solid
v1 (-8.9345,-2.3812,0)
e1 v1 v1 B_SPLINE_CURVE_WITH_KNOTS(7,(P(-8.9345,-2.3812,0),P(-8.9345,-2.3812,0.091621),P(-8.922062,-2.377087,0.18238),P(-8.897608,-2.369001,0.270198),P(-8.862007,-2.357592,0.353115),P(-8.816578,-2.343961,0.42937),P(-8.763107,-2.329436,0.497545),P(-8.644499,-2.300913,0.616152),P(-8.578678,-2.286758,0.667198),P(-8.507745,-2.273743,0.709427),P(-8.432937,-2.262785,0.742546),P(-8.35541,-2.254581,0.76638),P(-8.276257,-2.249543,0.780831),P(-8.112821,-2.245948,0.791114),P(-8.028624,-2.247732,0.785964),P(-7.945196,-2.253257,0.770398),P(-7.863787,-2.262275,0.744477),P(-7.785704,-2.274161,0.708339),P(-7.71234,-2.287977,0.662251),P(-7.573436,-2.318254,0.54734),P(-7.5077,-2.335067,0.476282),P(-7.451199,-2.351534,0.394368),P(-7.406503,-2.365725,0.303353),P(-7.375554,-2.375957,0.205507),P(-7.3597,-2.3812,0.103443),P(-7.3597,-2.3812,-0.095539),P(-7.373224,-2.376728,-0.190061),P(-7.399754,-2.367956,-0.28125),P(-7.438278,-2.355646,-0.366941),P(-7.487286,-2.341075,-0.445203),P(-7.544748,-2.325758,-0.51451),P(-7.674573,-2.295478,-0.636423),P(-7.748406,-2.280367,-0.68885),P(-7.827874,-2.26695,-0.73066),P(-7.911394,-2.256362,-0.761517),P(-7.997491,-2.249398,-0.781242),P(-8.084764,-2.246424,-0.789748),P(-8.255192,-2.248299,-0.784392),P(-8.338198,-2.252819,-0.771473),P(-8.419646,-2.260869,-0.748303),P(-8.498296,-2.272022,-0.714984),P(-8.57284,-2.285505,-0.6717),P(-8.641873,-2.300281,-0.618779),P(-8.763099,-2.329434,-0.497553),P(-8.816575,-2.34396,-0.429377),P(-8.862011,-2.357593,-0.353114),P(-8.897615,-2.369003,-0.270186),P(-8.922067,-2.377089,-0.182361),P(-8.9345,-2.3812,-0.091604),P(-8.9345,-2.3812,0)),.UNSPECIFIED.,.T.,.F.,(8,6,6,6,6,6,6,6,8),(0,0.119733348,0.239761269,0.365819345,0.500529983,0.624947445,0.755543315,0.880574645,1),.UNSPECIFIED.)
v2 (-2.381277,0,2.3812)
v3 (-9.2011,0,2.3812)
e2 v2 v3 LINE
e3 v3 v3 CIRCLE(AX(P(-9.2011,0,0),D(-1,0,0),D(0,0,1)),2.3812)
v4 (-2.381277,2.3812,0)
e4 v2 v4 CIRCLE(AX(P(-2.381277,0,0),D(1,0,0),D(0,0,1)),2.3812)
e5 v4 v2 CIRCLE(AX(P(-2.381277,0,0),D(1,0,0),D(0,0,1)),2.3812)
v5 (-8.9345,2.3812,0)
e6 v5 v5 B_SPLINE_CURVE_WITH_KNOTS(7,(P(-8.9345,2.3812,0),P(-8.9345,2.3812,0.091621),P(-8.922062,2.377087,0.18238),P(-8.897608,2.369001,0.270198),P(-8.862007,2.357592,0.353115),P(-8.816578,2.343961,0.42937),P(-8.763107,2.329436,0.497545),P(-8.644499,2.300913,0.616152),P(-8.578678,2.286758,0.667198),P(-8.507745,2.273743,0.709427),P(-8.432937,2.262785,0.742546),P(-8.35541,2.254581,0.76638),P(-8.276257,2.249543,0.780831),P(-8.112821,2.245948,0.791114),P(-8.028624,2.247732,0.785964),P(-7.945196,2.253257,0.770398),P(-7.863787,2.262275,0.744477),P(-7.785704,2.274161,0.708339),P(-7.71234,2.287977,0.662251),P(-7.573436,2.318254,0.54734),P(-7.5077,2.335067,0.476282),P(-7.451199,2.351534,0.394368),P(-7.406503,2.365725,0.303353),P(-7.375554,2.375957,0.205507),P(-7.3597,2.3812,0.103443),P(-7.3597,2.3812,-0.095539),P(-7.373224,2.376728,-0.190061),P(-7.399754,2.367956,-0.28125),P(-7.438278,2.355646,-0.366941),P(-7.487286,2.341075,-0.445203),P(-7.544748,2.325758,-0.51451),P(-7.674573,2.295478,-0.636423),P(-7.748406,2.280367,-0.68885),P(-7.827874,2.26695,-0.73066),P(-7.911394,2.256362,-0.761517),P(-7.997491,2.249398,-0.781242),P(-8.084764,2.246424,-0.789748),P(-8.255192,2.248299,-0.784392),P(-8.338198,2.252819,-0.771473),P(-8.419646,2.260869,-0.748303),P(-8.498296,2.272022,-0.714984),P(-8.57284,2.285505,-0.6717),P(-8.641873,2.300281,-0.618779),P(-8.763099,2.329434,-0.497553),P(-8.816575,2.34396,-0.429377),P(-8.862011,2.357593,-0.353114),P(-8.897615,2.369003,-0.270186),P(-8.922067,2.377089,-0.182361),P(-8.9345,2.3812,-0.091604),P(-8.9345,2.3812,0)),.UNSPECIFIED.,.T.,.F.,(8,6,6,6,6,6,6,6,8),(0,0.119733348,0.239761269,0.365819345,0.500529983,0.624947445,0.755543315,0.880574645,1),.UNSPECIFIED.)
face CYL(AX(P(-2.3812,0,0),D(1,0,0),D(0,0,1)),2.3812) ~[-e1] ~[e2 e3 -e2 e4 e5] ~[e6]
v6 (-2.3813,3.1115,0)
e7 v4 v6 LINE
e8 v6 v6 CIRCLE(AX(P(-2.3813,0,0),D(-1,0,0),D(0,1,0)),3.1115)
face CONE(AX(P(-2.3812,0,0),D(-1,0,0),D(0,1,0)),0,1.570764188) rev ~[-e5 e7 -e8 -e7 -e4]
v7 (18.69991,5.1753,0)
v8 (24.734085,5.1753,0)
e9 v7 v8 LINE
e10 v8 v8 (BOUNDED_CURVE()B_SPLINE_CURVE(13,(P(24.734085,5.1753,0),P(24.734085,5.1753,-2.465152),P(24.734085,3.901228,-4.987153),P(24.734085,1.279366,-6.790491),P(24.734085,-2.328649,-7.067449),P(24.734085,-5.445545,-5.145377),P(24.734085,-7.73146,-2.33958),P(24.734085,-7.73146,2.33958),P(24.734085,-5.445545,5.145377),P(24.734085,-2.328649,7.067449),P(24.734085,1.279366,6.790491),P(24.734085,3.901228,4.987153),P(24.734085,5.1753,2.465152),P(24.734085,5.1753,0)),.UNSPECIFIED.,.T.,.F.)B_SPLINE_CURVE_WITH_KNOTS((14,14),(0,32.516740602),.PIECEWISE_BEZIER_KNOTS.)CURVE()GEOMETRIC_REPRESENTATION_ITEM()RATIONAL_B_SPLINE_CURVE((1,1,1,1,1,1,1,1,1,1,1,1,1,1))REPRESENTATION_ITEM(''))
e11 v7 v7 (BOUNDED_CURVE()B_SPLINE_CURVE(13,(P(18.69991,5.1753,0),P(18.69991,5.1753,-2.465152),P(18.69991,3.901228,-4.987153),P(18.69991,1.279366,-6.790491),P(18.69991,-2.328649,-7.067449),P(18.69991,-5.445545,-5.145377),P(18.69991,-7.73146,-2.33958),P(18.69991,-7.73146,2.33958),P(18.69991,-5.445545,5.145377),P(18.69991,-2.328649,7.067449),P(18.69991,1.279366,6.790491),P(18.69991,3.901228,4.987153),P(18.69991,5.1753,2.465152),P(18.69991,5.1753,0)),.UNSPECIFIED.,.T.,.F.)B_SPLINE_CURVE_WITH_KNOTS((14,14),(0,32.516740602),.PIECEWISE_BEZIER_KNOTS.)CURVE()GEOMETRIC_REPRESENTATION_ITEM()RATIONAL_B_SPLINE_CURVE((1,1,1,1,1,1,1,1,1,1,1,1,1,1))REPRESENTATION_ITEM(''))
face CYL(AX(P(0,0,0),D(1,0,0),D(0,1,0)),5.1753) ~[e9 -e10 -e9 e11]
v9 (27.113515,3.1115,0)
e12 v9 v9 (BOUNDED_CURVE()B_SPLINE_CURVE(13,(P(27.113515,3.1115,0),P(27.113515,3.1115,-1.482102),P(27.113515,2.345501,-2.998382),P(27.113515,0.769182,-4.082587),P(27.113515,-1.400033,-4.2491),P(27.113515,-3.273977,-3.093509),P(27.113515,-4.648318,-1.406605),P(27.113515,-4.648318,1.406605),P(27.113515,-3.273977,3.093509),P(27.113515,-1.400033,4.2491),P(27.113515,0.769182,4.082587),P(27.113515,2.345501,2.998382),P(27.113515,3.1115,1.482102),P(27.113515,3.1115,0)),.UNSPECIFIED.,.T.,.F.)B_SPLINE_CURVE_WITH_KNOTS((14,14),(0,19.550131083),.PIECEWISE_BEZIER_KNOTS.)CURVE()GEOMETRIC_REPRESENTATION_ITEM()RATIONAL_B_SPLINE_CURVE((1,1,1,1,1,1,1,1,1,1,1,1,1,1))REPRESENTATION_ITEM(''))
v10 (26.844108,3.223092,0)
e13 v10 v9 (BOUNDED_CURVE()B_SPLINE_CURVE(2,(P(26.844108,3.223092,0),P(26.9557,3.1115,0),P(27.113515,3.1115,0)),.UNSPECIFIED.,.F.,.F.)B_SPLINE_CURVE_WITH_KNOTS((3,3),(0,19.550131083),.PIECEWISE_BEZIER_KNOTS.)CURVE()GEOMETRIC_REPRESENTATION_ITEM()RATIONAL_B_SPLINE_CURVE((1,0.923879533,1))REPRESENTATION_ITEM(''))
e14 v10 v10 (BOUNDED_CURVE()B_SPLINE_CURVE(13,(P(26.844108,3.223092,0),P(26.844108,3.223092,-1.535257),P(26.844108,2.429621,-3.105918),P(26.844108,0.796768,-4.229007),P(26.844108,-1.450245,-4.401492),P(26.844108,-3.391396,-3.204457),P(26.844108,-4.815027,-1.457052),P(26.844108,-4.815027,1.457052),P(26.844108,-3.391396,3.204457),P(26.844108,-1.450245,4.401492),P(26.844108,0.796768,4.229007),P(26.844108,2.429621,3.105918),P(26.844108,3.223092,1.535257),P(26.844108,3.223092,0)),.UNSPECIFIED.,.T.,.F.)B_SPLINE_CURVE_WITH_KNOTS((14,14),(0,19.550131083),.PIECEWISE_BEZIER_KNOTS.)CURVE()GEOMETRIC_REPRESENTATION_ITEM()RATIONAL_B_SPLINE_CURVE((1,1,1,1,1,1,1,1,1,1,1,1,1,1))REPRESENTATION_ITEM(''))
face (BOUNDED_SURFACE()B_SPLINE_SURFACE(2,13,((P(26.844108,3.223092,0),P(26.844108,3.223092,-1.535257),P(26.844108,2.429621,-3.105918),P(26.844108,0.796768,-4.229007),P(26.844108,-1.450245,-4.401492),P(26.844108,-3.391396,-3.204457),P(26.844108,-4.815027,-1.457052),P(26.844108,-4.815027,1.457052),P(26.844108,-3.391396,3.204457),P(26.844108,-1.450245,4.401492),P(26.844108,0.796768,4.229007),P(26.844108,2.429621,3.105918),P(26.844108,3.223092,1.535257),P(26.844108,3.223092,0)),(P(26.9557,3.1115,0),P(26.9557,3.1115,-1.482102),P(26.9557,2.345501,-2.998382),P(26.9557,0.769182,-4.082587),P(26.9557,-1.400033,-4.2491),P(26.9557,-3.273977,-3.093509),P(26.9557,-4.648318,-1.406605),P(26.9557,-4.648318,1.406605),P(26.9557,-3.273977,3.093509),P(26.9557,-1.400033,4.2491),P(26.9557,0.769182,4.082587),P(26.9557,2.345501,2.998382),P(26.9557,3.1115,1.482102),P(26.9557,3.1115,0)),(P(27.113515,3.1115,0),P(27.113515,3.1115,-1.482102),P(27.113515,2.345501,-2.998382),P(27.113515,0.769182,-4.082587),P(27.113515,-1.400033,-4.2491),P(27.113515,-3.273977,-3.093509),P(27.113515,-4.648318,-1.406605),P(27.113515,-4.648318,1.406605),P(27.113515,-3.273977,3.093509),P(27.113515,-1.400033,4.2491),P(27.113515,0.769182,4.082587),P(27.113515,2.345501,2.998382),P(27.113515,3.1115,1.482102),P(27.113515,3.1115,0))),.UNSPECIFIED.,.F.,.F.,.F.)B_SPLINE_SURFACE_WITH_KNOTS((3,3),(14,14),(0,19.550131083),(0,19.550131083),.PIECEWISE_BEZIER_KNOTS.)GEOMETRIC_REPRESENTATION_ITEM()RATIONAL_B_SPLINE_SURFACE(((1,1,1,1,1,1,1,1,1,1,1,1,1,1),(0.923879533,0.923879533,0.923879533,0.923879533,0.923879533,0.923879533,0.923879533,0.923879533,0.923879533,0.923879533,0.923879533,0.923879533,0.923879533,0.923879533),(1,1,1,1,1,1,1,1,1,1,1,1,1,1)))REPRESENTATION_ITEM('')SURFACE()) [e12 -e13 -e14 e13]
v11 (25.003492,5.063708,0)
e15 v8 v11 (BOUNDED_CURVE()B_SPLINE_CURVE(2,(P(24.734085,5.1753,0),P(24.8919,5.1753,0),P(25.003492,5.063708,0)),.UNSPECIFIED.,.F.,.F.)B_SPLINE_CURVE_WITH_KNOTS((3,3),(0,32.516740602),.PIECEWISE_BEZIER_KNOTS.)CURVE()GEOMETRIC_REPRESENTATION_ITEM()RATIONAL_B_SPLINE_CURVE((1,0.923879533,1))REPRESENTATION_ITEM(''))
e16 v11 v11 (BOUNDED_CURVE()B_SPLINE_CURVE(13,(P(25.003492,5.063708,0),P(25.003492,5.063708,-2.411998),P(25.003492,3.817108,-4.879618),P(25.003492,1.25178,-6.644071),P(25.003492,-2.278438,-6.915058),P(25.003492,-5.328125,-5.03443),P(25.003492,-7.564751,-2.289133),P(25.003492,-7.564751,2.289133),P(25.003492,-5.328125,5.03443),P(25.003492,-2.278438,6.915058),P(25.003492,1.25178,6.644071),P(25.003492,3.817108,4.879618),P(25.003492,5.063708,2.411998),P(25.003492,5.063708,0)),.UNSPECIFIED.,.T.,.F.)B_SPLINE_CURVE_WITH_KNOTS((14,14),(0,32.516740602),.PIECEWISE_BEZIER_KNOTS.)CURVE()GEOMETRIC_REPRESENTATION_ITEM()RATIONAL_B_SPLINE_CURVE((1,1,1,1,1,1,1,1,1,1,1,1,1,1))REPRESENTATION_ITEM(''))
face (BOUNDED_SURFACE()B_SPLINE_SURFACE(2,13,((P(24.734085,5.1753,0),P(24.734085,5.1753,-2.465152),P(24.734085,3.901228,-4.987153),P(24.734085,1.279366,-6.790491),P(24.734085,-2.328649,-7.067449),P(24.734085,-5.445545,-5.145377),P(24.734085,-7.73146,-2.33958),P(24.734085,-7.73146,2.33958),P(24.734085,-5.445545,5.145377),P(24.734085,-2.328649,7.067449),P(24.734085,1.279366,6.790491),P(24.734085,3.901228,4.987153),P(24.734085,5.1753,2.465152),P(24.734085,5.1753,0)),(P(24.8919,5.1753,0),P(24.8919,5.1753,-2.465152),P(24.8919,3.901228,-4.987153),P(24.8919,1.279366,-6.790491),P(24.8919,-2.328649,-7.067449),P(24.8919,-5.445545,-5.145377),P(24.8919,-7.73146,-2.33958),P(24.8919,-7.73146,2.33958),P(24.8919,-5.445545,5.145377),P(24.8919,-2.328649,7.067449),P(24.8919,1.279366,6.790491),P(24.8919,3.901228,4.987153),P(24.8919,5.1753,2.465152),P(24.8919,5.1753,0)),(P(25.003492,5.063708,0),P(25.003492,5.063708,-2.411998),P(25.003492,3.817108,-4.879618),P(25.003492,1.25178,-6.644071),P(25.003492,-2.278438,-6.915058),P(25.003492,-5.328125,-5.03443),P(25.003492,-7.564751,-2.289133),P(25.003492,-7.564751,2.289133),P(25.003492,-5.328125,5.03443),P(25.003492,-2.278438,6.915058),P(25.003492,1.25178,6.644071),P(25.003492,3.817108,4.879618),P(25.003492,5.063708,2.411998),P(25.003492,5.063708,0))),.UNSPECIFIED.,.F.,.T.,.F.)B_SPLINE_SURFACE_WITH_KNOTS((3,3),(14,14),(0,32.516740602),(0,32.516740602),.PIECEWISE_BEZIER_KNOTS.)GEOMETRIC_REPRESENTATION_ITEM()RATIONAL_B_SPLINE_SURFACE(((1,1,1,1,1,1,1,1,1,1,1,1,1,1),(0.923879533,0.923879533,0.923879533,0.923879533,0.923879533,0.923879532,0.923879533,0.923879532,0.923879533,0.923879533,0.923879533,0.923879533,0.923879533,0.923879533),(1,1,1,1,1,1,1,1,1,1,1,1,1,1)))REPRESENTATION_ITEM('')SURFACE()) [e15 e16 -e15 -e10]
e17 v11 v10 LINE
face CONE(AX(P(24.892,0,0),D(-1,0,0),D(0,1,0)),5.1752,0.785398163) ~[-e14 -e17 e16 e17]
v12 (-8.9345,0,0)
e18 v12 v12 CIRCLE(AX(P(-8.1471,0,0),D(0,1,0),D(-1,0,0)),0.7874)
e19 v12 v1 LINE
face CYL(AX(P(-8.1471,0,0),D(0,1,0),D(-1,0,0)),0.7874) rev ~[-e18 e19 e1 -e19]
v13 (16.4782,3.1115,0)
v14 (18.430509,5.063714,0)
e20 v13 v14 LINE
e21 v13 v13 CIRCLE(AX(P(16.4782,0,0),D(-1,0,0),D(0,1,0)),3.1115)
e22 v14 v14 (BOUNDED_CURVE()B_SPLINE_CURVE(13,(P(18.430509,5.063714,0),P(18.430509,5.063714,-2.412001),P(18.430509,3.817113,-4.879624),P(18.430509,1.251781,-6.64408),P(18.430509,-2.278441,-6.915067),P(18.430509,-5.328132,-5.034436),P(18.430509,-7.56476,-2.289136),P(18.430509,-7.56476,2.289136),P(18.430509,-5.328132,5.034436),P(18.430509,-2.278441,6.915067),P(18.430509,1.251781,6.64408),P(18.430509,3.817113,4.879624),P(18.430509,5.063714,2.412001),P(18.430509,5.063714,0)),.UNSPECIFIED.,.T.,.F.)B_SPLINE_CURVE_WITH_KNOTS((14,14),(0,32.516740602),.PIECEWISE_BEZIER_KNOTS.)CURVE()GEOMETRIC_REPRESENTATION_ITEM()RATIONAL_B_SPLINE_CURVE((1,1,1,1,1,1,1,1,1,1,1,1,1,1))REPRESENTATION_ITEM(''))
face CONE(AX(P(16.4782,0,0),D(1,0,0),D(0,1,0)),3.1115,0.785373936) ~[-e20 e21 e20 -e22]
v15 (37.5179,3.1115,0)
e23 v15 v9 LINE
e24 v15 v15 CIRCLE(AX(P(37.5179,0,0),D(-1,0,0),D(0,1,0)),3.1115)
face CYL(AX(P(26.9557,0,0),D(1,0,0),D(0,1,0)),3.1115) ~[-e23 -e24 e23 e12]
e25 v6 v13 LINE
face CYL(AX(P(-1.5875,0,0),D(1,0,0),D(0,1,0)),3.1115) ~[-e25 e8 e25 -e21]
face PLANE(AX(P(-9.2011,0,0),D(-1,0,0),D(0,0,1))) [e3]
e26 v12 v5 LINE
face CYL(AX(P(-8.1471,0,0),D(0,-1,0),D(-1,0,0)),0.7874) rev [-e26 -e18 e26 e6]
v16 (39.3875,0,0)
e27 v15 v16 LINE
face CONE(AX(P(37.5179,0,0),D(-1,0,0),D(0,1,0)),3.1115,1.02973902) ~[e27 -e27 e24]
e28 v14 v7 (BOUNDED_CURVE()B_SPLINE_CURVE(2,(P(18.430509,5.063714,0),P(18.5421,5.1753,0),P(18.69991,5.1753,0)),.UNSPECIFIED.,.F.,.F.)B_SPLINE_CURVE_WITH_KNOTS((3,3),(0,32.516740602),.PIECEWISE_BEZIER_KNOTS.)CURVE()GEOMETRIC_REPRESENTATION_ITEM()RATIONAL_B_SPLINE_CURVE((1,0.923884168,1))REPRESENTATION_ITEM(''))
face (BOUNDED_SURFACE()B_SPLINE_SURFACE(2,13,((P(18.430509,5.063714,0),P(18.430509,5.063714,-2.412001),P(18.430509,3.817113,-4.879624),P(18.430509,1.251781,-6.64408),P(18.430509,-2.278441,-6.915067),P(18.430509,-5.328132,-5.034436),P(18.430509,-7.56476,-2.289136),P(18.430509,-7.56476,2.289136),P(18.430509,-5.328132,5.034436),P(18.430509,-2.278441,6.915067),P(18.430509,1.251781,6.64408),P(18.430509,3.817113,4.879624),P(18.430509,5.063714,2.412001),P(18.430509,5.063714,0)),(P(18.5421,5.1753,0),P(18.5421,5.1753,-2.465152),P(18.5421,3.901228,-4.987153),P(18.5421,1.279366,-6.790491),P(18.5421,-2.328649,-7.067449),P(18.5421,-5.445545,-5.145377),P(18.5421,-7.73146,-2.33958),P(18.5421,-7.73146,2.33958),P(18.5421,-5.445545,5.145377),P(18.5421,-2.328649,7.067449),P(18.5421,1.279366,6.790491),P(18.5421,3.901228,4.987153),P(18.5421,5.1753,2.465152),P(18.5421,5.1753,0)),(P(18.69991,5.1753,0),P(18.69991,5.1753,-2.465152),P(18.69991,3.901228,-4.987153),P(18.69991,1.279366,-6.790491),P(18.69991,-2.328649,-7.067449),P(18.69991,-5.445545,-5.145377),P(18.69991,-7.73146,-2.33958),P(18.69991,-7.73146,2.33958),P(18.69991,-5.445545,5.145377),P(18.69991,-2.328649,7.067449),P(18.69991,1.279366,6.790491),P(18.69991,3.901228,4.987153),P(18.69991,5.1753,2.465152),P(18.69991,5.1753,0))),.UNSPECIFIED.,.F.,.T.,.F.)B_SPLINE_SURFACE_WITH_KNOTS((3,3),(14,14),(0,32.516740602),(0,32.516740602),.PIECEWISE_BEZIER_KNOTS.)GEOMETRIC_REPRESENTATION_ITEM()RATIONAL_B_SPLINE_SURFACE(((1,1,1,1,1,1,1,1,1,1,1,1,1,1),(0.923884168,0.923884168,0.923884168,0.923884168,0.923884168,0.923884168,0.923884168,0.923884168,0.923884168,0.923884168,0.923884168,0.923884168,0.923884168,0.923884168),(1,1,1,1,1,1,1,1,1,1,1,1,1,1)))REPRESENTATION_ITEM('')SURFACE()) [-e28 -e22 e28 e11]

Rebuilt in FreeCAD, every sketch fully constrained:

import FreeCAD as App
import Part
import Sketcher
Q = App.Units.Quantity


def edges_at(feature, points):
    """Names of the edges that pass closest to the given points."""
    edges = feature.Shape.Edges
    near = lambda p: min(range(len(edges)), key=lambda i: edges[i].distToShape(Part.Vertex(*p))[0])
    return sorted({f"Edge{near(p) + 1}" for p in points})

doc = App.newDocument("Part")
params = doc.addObject("Spreadsheet::Sheet", "Params")
for row, (alias, value) in enumerate([
    ("sketch1_width", "0.25 in"),
    ("revolution_angle", "360 deg"),
    ("fillet_radius", "0.015 in"),
    ("sketch2_diameter", "0.1875 in"),
    ("pad1_length", "0.2685 in"),
    ("sketch3_diameter", "0.062 in"),
], start=1):
    params.set(f"A{row}", alias)
    params.set(f"B{row}", "=" + value)
    params.setAlias(f"B{row}", alias)

body = doc.addObject("PartDesign::Body", "Body")

sketch1 = body.newObject("Sketcher::SketchObject", "Sketch")
sketch1.AttachmentSupport = (doc.getObject("XY_Plane"), [""])
sketch1.MapMode = "FlatFace"
sketch1.addGeometry([
    Part.LineSegment(App.Vector(39.4, 0, 0), App.Vector(37.5, 3.1, 0)),
    Part.LineSegment(App.Vector(37.5, 3.1, 0), App.Vector(27, 3.1, 0)),
    Part.LineSegment(App.Vector(27, 3.1, 0), App.Vector(24.9, 5.2, 0)),
    Part.LineSegment(App.Vector(24.9, 5.2, 0), App.Vector(18.5, 5.2, 0)),
    Part.LineSegment(App.Vector(18.5, 5.2, 0), App.Vector(16.5, 3.1, 0)),
    Part.LineSegment(App.Vector(16.5, 3.1, 0), App.Vector(-2.4, 3.1, 0)),
    Part.LineSegment(App.Vector(-2.4, 3.1, 0), App.Vector(-2.4, 0, 0)),
    Part.LineSegment(App.Vector(-2.4, 0, 0), App.Vector(39.4, 0, 0)),
], False)
sketch1.addConstraint([
    Sketcher.Constraint("Coincident", 0, 2, 1, 1),
    Sketcher.Constraint("Coincident", 1, 2, 2, 1),
    Sketcher.Constraint("Coincident", 2, 2, 3, 1),
    Sketcher.Constraint("Coincident", 3, 2, 4, 1),
    Sketcher.Constraint("Coincident", 4, 2, 5, 1),
    Sketcher.Constraint("Coincident", 5, 2, 6, 1),
    Sketcher.Constraint("Coincident", 6, 2, 7, 1),
    Sketcher.Constraint("Coincident", 7, 2, 0, 1),
    Sketcher.Constraint("Horizontal", 1),
    Sketcher.Constraint("Horizontal", 3),
    Sketcher.Constraint("Horizontal", 5),
    Sketcher.Constraint("Vertical", 6),
    Sketcher.Constraint("Horizontal", 7),
    Sketcher.Constraint("PointOnObject", 6, 2, -1),
    Sketcher.Constraint("Perpendicular", 2, 4),
    Sketcher.Constraint("Horizontal", 1, 2, 4, 2),
    Sketcher.Constraint("Equal", 2, 4),
    Sketcher.Constraint("DistanceX", 3, 2, 3, 1, Q("0.25 in")),
    Sketcher.Constraint("DistanceY", 6, 2, 6, 1, Q("0.1225 in")),
    Sketcher.Constraint("Angle", 0, Q("121.0003 deg")),
    Sketcher.Constraint("DistanceX", 1, 2, 1, 1, 10.5622),
    Sketcher.Constraint("DistanceY", -1, 1, 2, 2, 5.1752),
    Sketcher.Constraint("DistanceX", -1, 1, 2, 2, Q("0.98 in")),
    Sketcher.Constraint("DistanceX", 5, 2, 5, 1, Q("0.7425 in")),
])
sketch1.setExpression("Constraints[17]", "Params.sketch1_width")
revolution = body.newObject("PartDesign::Revolution", "Revolution")
revolution.Profile = sketch1
revolution.ReferenceAxis = (sketch1, ["H_Axis"])
revolution.setExpression("Angle", "Params.revolution_angle")
doc.recompute()

fillet = body.newObject("PartDesign::Fillet", "Fillet")
fillet.Base = (revolution, edges_at(revolution, [(18.542, -5.175, 0), (24.892, -5.175, 0), (26.956, -3.111, 0)]))
fillet.setExpression("Radius", "Params.fillet_radius")

sketch2 = body.newObject("Sketcher::SketchObject", "Sketch001")
sketch2.AttachmentSupport = (doc.getObject("YZ_Plane"), [""])
sketch2.MapMode = "FlatFace"
sketch2.AttachmentOffset = App.Placement(App.Vector(0, 0, -0.093748 * 25.4), App.Rotation())
sketch2.addGeometry(Part.Circle(App.Vector(0, 0, 0), App.Vector(0, 0, 1), 2.4), False)
sketch2.addConstraint([
    Sketcher.Constraint("Coincident", 0, 3, -1, 1),
    Sketcher.Constraint("Diameter", 0, Q("0.1875 in")),
])
sketch2.setExpression("Constraints[1]", "Params.sketch2_diameter")
pad1 = body.newObject("PartDesign::Pad", "Pad")
pad1.Profile = sketch2
pad1.setExpression("Length", "Params.pad1_length")
pad1.Reversed = True

sketch3 = body.newObject("Sketcher::SketchObject", "Sketch002")
sketch3.AttachmentSupport = (doc.getObject("XZ_Plane"), [""])
sketch3.MapMode = "FlatFace"
sketch3.addGeometry(Part.Circle(App.Vector(-8.1, 0, 0), App.Vector(0, 0, 1), 0.8), False)
sketch3.addConstraint([
    Sketcher.Constraint("PointOnObject", 0, 3, -1),
    Sketcher.Constraint("Diameter", 0, Q("0.062 in")),
    Sketcher.Constraint("DistanceX", 0, 3, -1, 1, 8.147),
])
sketch3.setExpression("Constraints[1]", "Params.sketch3_diameter")
pocket1 = body.newObject("PartDesign::Pocket", "Pocket")
pocket1.Profile = sketch3
pocket1.Type = "ThroughAll"
pocket1.Midplane = True

doc.recompute()
